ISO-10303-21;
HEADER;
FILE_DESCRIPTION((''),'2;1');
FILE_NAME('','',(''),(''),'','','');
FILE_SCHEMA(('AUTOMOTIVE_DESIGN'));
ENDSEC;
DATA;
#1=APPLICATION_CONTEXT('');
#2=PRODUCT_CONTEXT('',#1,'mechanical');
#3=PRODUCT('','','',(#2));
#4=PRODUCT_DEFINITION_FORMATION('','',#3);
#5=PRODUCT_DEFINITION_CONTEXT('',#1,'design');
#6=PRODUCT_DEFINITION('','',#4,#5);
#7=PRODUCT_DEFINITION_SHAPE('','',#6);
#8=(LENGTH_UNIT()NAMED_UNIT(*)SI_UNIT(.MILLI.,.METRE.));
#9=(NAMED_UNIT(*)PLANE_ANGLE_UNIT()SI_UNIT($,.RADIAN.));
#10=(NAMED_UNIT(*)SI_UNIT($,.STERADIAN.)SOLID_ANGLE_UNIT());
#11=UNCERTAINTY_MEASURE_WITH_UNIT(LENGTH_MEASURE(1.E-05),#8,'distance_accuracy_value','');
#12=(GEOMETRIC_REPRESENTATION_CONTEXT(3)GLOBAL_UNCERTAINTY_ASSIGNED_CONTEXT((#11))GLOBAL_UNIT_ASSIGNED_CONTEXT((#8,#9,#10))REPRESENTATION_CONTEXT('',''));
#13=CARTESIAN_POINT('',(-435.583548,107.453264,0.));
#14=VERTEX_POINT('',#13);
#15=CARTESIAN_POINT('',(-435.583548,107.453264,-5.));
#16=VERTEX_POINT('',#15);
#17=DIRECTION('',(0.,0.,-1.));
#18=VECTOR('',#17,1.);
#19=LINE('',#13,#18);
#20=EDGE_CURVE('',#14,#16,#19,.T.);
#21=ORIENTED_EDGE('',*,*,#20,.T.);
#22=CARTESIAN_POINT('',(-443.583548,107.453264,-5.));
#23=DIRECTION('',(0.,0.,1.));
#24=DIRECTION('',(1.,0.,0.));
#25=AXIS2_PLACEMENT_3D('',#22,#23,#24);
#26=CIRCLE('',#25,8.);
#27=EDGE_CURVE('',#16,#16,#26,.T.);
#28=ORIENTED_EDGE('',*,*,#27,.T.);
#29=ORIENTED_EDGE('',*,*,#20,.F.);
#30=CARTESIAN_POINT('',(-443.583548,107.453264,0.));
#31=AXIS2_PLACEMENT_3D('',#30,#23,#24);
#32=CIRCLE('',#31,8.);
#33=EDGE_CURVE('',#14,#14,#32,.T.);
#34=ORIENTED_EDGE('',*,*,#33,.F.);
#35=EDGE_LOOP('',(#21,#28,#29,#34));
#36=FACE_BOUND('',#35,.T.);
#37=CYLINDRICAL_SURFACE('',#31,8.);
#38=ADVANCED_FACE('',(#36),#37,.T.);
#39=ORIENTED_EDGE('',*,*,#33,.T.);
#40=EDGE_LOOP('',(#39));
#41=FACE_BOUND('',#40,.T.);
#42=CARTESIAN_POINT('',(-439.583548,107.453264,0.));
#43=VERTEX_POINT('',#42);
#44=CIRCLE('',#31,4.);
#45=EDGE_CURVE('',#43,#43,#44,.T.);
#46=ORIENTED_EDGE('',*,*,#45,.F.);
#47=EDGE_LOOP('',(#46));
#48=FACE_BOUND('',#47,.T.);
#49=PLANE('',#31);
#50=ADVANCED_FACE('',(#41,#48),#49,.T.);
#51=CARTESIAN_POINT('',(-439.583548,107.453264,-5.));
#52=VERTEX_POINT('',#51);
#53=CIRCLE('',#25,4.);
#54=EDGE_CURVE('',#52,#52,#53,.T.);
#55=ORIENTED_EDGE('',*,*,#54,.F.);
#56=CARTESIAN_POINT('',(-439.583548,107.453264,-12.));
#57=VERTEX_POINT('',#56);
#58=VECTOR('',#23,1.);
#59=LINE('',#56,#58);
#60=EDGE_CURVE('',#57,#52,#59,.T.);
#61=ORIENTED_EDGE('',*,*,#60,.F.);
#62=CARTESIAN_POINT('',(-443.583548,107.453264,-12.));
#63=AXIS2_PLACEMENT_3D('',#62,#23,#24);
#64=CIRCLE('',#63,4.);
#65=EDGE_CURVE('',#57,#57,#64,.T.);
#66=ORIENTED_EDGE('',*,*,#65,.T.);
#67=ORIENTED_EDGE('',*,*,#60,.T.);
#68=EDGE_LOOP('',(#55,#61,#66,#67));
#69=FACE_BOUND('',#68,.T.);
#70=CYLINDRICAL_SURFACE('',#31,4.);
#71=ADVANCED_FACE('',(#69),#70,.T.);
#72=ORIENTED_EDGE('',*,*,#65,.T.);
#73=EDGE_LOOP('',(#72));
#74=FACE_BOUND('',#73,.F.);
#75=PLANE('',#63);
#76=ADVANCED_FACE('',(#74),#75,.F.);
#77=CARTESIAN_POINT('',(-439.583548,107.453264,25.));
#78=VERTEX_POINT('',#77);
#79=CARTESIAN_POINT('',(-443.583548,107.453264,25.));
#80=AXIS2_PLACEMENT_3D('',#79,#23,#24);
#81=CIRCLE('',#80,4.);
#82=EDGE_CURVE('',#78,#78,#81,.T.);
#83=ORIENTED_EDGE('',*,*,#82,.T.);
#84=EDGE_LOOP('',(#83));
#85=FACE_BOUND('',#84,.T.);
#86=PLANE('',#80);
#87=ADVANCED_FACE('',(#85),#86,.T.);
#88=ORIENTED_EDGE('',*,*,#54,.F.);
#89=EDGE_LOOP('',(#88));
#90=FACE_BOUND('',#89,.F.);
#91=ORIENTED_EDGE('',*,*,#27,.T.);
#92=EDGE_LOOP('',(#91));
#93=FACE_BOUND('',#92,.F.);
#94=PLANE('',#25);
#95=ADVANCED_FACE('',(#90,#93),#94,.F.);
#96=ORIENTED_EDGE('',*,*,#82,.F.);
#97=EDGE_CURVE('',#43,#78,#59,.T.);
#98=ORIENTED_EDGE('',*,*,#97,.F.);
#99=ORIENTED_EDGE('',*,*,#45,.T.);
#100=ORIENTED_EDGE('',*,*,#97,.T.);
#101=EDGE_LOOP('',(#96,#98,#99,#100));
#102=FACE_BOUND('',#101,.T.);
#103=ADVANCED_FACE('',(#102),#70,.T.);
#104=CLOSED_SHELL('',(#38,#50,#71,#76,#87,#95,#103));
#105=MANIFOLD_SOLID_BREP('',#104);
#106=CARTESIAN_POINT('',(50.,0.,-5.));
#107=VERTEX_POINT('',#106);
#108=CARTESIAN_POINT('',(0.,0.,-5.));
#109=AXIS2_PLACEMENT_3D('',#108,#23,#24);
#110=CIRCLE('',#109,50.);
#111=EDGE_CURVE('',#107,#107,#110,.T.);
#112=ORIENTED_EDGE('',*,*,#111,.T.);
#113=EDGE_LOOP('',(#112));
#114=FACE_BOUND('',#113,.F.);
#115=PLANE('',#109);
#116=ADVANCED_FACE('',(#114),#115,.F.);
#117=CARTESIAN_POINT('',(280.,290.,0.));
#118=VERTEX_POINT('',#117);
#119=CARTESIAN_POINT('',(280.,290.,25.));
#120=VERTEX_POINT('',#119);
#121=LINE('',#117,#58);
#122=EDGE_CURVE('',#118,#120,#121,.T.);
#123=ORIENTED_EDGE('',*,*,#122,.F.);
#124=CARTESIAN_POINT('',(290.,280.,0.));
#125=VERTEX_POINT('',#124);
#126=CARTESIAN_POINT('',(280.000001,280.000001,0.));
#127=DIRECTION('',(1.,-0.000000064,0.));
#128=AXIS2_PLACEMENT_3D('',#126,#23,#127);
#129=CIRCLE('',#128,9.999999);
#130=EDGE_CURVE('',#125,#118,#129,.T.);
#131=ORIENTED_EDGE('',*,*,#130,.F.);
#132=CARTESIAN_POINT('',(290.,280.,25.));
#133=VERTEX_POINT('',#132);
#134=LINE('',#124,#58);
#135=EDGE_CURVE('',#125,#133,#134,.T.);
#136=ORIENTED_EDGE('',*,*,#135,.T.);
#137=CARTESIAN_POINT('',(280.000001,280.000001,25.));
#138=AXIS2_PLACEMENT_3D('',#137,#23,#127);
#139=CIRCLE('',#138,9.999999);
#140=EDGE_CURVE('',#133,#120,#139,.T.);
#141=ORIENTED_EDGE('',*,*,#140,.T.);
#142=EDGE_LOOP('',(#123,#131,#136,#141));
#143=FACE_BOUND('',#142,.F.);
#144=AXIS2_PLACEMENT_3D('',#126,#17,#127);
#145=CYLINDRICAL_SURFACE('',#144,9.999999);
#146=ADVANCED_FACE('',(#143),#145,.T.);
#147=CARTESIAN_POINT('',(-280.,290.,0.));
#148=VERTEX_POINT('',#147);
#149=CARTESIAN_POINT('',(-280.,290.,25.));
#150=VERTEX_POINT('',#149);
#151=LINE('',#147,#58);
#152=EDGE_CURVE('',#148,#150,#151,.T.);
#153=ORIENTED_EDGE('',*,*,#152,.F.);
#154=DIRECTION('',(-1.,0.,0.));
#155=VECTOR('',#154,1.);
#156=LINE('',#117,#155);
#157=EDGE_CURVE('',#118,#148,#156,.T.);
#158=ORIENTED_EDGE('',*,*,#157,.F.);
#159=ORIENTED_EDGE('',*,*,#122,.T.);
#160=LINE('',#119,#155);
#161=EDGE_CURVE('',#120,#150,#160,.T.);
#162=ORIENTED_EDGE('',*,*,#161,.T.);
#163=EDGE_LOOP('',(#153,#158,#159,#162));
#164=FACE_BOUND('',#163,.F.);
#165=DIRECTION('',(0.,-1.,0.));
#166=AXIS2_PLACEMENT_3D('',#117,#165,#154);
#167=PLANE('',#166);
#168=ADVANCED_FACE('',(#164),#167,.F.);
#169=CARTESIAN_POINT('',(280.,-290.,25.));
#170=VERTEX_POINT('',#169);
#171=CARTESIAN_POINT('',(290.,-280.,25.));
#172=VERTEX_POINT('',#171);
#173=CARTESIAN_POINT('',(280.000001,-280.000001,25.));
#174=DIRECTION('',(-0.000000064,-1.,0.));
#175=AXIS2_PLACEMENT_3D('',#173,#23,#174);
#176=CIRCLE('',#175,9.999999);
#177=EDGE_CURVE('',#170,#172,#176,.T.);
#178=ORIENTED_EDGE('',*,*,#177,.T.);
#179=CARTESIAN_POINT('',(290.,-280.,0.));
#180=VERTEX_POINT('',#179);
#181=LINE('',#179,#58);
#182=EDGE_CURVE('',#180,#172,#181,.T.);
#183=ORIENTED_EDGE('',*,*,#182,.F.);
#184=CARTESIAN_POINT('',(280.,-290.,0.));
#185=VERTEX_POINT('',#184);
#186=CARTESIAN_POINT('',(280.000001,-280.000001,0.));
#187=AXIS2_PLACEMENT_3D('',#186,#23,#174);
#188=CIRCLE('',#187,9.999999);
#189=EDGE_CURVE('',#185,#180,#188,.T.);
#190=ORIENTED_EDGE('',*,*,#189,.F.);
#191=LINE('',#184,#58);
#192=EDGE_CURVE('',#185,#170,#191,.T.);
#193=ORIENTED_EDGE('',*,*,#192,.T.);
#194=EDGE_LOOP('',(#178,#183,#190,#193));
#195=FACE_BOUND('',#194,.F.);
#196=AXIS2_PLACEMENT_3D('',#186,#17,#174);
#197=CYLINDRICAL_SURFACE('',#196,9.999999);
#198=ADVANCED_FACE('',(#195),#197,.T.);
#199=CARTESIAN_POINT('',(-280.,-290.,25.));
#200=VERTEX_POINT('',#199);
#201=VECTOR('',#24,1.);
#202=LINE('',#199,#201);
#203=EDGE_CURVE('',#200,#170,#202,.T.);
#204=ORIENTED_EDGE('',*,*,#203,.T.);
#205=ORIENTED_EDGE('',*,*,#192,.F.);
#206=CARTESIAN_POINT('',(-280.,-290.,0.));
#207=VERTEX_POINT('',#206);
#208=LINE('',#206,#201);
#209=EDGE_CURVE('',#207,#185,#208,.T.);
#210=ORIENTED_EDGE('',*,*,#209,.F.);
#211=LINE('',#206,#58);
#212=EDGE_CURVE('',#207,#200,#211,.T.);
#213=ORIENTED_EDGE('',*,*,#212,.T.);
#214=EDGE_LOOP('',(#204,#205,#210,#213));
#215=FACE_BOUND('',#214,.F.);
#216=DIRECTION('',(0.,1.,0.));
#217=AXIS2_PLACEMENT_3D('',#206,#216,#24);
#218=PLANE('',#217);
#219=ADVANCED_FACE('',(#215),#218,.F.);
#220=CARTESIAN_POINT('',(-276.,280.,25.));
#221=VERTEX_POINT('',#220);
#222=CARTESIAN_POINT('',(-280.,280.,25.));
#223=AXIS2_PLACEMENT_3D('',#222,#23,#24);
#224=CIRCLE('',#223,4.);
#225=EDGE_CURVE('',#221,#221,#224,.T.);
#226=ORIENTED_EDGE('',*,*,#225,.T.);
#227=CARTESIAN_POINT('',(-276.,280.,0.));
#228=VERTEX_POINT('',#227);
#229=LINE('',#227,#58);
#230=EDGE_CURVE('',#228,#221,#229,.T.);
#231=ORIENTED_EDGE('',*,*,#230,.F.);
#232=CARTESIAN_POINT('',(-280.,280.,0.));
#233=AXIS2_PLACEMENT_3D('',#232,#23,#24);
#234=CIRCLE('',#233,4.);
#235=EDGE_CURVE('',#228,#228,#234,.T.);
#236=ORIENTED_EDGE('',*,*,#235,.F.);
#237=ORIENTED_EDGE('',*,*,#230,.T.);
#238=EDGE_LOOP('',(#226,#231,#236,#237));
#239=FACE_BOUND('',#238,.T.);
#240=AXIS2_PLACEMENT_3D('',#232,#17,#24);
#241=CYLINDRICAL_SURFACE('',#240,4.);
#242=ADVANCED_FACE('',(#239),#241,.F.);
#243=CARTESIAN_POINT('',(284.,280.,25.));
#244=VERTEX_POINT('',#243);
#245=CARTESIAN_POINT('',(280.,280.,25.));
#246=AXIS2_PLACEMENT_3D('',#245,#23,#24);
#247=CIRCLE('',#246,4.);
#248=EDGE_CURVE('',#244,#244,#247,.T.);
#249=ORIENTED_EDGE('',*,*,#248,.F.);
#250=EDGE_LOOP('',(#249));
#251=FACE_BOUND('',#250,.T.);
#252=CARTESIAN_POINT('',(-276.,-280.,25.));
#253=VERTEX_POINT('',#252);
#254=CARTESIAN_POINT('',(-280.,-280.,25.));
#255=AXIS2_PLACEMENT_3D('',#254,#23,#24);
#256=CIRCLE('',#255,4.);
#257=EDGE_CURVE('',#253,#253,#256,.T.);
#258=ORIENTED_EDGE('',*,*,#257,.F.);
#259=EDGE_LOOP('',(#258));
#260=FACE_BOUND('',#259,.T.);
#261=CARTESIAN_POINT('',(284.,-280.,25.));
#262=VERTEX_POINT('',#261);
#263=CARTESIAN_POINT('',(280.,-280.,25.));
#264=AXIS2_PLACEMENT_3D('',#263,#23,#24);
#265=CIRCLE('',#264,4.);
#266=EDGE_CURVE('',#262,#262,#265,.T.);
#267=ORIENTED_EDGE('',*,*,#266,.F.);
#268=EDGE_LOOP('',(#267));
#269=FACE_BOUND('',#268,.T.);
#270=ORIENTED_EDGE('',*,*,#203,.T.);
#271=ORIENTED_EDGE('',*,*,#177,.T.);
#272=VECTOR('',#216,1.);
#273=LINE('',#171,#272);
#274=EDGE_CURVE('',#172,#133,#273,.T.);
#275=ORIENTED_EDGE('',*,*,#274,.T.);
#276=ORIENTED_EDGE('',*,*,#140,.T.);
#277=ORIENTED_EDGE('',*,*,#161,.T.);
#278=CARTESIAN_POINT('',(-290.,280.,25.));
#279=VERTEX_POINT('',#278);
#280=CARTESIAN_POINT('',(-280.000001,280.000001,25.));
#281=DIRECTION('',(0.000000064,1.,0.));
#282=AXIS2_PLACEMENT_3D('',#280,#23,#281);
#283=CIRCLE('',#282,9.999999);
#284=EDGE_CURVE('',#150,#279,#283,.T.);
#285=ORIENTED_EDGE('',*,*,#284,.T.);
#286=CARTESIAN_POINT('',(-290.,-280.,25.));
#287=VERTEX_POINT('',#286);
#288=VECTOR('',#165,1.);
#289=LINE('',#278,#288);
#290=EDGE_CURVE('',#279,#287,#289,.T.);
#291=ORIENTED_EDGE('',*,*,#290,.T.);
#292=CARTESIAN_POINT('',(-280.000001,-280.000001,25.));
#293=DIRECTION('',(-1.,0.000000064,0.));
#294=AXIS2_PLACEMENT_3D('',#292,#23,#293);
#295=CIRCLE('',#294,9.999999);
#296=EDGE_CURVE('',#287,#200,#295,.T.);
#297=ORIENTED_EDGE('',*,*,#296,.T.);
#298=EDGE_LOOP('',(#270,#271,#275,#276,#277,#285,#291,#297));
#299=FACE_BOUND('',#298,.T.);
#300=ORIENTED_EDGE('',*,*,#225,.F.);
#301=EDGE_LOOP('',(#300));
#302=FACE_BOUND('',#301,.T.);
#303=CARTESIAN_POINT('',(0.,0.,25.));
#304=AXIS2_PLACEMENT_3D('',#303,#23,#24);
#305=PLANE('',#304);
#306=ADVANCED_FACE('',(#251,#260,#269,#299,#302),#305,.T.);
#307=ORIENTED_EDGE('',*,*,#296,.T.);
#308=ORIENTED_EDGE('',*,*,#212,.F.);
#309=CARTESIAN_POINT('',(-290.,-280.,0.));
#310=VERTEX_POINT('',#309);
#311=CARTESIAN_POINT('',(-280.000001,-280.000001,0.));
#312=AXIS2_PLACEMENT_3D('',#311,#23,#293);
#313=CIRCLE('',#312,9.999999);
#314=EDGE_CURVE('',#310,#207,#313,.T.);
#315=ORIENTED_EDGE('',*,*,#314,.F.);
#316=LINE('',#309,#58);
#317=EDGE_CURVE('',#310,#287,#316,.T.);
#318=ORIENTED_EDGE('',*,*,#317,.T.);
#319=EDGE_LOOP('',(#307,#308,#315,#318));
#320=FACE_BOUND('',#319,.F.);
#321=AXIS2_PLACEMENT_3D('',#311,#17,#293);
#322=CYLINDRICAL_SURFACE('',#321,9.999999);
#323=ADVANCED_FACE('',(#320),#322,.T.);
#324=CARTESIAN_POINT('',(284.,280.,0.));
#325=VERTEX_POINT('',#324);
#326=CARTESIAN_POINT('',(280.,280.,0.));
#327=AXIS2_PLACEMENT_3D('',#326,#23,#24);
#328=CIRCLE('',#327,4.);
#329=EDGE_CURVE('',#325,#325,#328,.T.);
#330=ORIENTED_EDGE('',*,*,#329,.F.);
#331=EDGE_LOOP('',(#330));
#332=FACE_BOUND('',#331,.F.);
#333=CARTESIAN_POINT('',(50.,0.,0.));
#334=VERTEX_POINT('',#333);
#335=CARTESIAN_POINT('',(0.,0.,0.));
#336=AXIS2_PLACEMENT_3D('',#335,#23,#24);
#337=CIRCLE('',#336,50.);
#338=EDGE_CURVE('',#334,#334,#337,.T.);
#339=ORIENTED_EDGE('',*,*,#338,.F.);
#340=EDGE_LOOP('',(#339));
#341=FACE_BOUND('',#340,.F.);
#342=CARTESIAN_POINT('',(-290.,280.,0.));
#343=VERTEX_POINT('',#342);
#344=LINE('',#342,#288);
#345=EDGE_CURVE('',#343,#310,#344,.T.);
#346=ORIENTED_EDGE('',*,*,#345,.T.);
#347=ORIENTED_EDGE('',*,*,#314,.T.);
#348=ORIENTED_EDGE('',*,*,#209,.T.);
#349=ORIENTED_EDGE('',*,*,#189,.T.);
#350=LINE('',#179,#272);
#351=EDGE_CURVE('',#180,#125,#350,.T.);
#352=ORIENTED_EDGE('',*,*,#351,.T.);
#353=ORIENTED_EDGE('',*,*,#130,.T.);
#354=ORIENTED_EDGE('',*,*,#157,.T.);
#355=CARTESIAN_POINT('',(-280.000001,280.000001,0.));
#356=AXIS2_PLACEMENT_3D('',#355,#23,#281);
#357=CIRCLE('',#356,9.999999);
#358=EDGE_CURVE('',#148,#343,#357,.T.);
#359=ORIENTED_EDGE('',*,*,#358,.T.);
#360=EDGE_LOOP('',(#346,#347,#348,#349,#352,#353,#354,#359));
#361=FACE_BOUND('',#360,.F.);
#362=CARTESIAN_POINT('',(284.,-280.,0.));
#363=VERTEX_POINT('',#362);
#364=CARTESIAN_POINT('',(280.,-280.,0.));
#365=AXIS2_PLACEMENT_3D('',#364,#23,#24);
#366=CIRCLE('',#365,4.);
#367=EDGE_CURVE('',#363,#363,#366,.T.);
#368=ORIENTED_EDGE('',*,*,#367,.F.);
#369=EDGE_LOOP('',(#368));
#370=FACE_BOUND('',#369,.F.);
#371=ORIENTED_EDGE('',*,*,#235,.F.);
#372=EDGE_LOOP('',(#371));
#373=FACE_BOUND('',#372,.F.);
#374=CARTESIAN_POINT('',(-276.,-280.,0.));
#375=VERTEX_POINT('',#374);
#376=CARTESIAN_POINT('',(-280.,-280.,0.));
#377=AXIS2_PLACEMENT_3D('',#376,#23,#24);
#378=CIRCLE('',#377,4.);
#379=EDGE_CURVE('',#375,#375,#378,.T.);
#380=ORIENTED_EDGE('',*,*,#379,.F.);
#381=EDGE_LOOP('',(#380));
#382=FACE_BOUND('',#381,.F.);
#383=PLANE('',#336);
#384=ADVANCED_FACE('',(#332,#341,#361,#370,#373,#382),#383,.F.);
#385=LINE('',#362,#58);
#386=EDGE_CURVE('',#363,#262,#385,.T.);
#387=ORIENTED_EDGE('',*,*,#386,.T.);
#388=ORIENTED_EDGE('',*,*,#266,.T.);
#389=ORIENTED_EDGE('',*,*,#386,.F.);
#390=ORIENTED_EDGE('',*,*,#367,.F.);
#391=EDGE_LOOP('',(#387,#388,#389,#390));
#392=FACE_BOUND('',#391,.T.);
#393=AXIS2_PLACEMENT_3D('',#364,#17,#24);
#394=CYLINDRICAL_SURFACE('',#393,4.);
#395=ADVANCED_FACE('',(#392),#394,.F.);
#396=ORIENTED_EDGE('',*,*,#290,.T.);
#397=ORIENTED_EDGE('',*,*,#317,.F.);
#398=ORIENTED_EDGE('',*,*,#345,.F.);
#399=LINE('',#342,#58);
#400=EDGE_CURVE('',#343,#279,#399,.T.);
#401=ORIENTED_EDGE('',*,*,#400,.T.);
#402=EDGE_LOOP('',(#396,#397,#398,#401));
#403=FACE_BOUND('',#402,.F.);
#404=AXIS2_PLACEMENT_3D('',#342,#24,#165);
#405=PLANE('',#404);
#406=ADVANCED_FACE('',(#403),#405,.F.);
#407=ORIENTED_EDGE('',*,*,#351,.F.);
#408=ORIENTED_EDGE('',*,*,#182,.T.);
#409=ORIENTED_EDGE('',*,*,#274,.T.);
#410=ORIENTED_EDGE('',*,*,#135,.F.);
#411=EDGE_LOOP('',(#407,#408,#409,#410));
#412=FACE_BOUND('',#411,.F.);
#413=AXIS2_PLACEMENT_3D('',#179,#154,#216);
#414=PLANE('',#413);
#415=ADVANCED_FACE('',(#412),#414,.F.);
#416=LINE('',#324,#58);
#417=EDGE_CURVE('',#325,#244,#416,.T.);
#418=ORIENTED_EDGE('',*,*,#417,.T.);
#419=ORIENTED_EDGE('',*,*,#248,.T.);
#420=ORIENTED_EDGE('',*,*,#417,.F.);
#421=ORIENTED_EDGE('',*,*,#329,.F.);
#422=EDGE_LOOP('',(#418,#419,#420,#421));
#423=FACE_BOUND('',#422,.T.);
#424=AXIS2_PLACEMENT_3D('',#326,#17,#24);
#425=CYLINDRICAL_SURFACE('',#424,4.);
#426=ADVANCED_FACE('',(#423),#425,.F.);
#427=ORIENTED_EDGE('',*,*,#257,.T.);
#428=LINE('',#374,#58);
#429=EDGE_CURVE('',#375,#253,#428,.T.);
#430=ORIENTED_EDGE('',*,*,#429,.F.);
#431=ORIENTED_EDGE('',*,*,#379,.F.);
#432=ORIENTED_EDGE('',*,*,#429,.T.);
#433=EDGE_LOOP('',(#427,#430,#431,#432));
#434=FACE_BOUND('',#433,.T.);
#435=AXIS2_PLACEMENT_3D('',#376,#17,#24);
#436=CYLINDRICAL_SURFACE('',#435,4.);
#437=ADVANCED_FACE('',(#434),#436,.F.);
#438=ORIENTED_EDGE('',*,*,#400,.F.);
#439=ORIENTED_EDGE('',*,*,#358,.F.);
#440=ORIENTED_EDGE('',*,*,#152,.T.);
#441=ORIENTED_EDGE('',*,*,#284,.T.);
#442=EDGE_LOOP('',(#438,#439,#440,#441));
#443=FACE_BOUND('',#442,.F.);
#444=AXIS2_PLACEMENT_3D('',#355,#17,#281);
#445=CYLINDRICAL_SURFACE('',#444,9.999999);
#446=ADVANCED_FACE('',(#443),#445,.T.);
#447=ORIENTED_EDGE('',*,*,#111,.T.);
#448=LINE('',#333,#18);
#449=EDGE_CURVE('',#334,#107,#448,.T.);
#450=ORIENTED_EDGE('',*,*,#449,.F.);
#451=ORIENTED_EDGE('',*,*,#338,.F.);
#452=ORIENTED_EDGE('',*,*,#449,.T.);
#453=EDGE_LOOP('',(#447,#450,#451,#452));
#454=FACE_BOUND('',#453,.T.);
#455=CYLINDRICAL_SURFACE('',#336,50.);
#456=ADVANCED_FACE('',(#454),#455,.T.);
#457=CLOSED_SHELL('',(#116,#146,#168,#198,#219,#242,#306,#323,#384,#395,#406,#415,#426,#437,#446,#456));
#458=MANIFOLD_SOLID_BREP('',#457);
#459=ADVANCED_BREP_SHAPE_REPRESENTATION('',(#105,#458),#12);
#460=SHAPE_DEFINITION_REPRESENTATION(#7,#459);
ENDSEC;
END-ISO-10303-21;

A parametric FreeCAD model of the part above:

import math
import FreeCAD as App
import Part
import Sketcher

V = App.Vector
Q = App.Units.Quantity

doc = App.newDocument("Part")
body = doc.addObject("PartDesign::Body", "Body")

sketch1 = body.newObject("Sketcher::SketchObject", "Sketch")
sketch1.AttachmentSupport = (doc.getObject("XY_Plane"), [""])
sketch1.MapMode = "FlatFace"
sketch1.addGeometry(Part.ArcOfCircle(Part.Circle(V(280, 280, 0), V(0, 0, 1), 10), math.radians(0), math.radians(90)), False)
sketch1.addGeometry(Part.LineSegment(V(280, 290, 0), V(-280, 290, 0)), False)
sketch1.addGeometry(Part.ArcOfCircle(Part.Circle(V(-280, 280, 0), V(0, 0, 1), 10), math.radians(90), math.radians(180)), False)
sketch1.addGeometry(Part.LineSegment(V(-290, 280, 0), V(-290, -280, 0)), False)
sketch1.addGeometry(Part.ArcOfCircle(Part.Circle(V(-280, -280, 0), V(0, 0, 1), 10), math.radians(180), math.radians(270)), False)
sketch1.addGeometry(Part.LineSegment(V(-280, -290, 0), V(280, -290, 0)), False)
sketch1.addGeometry(Part.ArcOfCircle(Part.Circle(V(280, -280, 0), V(0, 0, 1), 10), math.radians(-90), math.radians(0)), False)
sketch1.addGeometry(Part.LineSegment(V(290, -280, 0), V(290, 280, 0)), False)
sketch1.addGeometry(Part.Circle(V(-280, -280, 0), V(0, 0, 1), 4), False)
sketch1.addGeometry(Part.Circle(V(280, -280, 0), V(0, 0, 1), 4), False)
sketch1.addGeometry(Part.Circle(V(-280, 280, 0), V(0, 0, 1), 4), False)
sketch1.addGeometry(Part.Circle(V(280, 280, 0), V(0, 0, 1), 4), False)
sketch1.addConstraint(Sketcher.Constraint("Tangent", 0, 2, 1, 1))
sketch1.addConstraint(Sketcher.Constraint("Tangent", 1, 2, 2, 1))
sketch1.addConstraint(Sketcher.Constraint("Tangent", 2, 2, 3, 1))
sketch1.addConstraint(Sketcher.Constraint("Tangent", 3, 2, 4, 1))
sketch1.addConstraint(Sketcher.Constraint("Tangent", 4, 2, 5, 1))
sketch1.addConstraint(Sketcher.Constraint("Tangent", 5, 2, 6, 1))
sketch1.addConstraint(Sketcher.Constraint("Tangent", 6, 2, 7, 1))
sketch1.addConstraint(Sketcher.Constraint("Tangent", 7, 2, 0, 1))
sketch1.addConstraint(Sketcher.Constraint("Horizontal", 1))
sketch1.addConstraint(Sketcher.Constraint("Vertical", 3))
sketch1.addConstraint(Sketcher.Constraint("Horizontal", 5))
sketch1.addConstraint(Sketcher.Constraint("Vertical", 7))
sketch1.addConstraint(Sketcher.Constraint("Coincident", 8, 3, 4, 3))
sketch1.addConstraint(Sketcher.Constraint("Coincident", 9, 3, 6, 3))
sketch1.addConstraint(Sketcher.Constraint("Coincident", 10, 3, 2, 3))
sketch1.addConstraint(Sketcher.Constraint("Coincident", 11, 3, 0, 3))
sketch1.addConstraint(Sketcher.Constraint("Equal", 0, 2))
sketch1.addConstraint(Sketcher.Constraint("Equal", 2, 4))
sketch1.addConstraint(Sketcher.Constraint("Equal", 4, 6))
sketch1.addConstraint(Sketcher.Constraint("Equal", 8, 9))
sketch1.addConstraint(Sketcher.Constraint("Equal", 9, 10))
sketch1.addConstraint(Sketcher.Constraint("Equal", 10, 11))
sketch1.addConstraint(Sketcher.Constraint("Symmetric", 0, 3, 4, 3, -1, 1))
sketch1.addConstraint(Sketcher.Constraint("Equal", 5, 3))
sketch1.addConstraint(Sketcher.Constraint("Diameter", 8, Q("8 mm")))
sketch1.addConstraint(Sketcher.Constraint("Radius", 0, Q("9.999999 mm")))
sketch1.addConstraint(Sketcher.Constraint("DistanceX", 1, 2, 1, 1, Q("560 mm")))
pad1 = body.newObject("PartDesign::Pad", "Pad")
pad1.Profile = sketch1
pad1.Length = 25

sketch2 = body.newObject("Sketcher::SketchObject", "Sketch001")
sketch2.AttachmentSupport = (doc.getObject("XY_Plane"), [""])
sketch2.MapMode = "FlatFace"
sketch2.addGeometry(Part.Circle(V(0, 0, 0), V(0, 0, 1), 50), False)
sketch2.addConstraint(Sketcher.Constraint("Coincident", 0, 3, -1, 1))
sketch2.addConstraint(Sketcher.Constraint("Diameter", 0, Q("100 mm")))
pad2 = body.newObject("PartDesign::Pad", "Pad001")
pad2.Profile = sketch2
pad2.Length = 5
pad2.Reversed = True
body2 = doc.addObject("PartDesign::Body", "Body001")

sketch3 = body2.newObject("Sketcher::SketchObject", "Sketch002")
sketch3.AttachmentSupport = (doc.getObject("XY_Plane001"), [""])
sketch3.MapMode = "FlatFace"
sketch3.addGeometry(Part.Circle(V(-443.6, 107.5, 0), V(0, 0, 1), 4), False)
sketch3.addConstraint(Sketcher.Constraint("Diameter", 0, Q("8 mm")))
sketch3.addConstraint(Sketcher.Constraint("DistanceX", 0, 3, -1, 1, Q("443.583548 mm")))
sketch3.addConstraint(Sketcher.Constraint("DistanceY", -1, 1, 0, 3, Q("107.453264 mm")))
pad3 = body2.newObject("PartDesign::Pad", "Pad002")
pad3.Profile = sketch3
pad3.Type = "TwoLengths"
pad3.Length = 25
pad3.Length2 = 12

sketch4 = body2.newObject("Sketcher::SketchObject", "Sketch003")
sketch4.AttachmentSupport = (doc.getObject("XY_Plane001"), [""])
sketch4.MapMode = "FlatFace"
sketch4.addGeometry(Part.Circle(V(-443.6, 107.5, 0), V(0, 0, 1), 8), False)
sketch4.addGeometry(Part.Circle(V(-443.6, 107.5, 0), V(0, 0, 1), 4), False)
sketch4.addConstraint(Sketcher.Constraint("Coincident", 1, 3, 0, 3))
sketch4.addConstraint(Sketcher.Constraint("Diameter", 0, Q("16 mm")))
sketch4.addConstraint(Sketcher.Constraint("Diameter", 1, Q("8 mm")))
sketch4.addConstraint(Sketcher.Constraint("DistanceX", 0, 3, -1, 1, Q("443.583548 mm")))
sketch4.addConstraint(Sketcher.Constraint("DistanceY", -1, 1, 0, 3, Q("107.453264 mm")))
pad4 = body2.newObject("PartDesign::Pad", "Pad003")
pad4.Profile = sketch4
pad4.Length = 5
pad4.Reversed = True

doc.recompute()
